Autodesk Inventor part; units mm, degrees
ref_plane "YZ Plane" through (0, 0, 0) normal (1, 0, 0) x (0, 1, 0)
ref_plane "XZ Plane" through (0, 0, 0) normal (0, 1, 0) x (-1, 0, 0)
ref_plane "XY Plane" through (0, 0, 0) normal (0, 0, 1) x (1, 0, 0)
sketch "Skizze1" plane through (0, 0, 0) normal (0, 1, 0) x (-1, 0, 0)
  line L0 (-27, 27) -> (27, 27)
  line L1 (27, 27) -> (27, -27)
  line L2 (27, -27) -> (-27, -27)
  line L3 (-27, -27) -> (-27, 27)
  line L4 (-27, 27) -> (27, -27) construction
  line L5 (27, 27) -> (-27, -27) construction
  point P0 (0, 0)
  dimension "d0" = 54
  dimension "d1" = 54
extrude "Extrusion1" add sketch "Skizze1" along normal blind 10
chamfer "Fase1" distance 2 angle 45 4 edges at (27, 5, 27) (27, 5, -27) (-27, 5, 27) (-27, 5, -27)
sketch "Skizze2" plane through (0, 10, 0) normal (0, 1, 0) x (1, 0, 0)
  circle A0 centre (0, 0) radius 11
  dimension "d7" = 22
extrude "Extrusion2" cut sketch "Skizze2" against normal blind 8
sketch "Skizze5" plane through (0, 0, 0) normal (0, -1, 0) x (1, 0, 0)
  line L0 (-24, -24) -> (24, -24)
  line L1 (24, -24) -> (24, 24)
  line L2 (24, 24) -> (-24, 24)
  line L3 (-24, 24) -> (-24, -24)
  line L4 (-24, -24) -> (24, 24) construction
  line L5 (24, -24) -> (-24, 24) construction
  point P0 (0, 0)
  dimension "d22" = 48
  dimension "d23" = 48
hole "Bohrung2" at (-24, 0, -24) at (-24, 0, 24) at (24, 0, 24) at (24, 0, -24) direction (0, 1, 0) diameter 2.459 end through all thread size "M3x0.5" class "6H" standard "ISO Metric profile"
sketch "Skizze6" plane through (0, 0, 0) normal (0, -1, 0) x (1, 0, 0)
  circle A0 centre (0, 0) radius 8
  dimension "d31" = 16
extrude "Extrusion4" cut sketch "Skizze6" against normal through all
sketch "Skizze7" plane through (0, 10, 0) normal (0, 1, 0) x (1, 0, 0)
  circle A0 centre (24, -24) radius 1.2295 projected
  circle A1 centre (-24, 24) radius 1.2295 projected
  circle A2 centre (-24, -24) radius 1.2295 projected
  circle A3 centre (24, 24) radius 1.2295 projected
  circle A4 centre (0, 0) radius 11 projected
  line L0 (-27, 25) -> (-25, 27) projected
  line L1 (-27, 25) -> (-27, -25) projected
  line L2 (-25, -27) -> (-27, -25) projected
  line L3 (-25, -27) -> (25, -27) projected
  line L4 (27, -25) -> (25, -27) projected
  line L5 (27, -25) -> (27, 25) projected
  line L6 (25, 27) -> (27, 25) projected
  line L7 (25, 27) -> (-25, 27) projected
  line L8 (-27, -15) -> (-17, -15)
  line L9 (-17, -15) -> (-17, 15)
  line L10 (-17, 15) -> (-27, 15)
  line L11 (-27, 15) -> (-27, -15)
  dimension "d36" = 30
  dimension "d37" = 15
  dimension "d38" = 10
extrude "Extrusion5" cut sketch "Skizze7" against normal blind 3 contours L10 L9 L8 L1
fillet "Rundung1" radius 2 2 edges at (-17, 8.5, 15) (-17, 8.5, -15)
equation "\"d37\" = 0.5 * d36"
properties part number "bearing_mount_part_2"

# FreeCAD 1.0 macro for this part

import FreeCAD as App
import Part
import Sketcher

V = App.Vector
Q = App.Units.Quantity


def edges_at(feature, points):
    """Names of the edges that pass closest to the given points."""
    edges = feature.Shape.Edges
    near = lambda p: min(range(len(edges)), key=lambda i: edges[i].distToShape(Part.Vertex(*p))[0])
    return sorted({f"Edge{near(p) + 1}" for p in points})

doc = App.newDocument("Part")
body = doc.addObject("PartDesign::Body", "Body")

sketch1 = body.newObject("Sketcher::SketchObject", "Sketch")
sketch1.AttachmentSupport = (doc.getObject("XZ_Plane"), [""])
sketch1.MapMode = "FlatFace"
sketch1.addGeometry([
    Part.LineSegment(V(-27, 27, 0), V(27, 27, 0)),
    Part.LineSegment(V(27, 27, 0), V(27, -27, 0)),
    Part.LineSegment(V(27, -27, 0), V(-27, -27, 0)),
    Part.LineSegment(V(-27, -27, 0), V(-27, 27, 0)),
], False)
sketch1.addConstraint([
    Sketcher.Constraint("Coincident", 0, 2, 1, 1),
    Sketcher.Constraint("Coincident", 1, 2, 2, 1),
    Sketcher.Constraint("Coincident", 2, 2, 3, 1),
    Sketcher.Constraint("Coincident", 3, 2, 0, 1),
    Sketcher.Constraint("Horizontal", 0),
    Sketcher.Constraint("Vertical", 1),
    Sketcher.Constraint("Horizontal", 2),
    Sketcher.Constraint("Vertical", 3),
    Sketcher.Constraint("Symmetric", 0, 2, 2, 2, -1, 1),
    Sketcher.Constraint("Equal", 2, 1),
    Sketcher.Constraint("DistanceX", 0, 1, 0, 2, Q("54 mm")),
])
pad1 = body.newObject("PartDesign::Pad", "Pad")
pad1.Profile = sketch1
pad1.Length = 10
pad1.Reversed = True
doc.recompute()

chamfer = body.newObject("PartDesign::Chamfer", "Chamfer")
chamfer.Base = (pad1, edges_at(pad1, [
    (27, 5, 27),
    (27, 5, -27),
    (-27, 5, 27),
    (-27, 5, -27),
]))
chamfer.Size = 2

sketch2 = body.newObject("Sketcher::SketchObject", "Sketch001")
sketch2.AttachmentSupport = (doc.getObject("XZ_Plane"), [""])
sketch2.MapMode = "FlatFace"
sketch2.AttachmentOffset = App.Placement(V(0, 0, -10), App.Rotation())
sketch2.addGeometry(Part.Circle(V(0, 0, 0), V(0, 0, 1), 11), False)
sketch2.addConstraint([
    Sketcher.Constraint("Coincident", 0, 3, -1, 1),
    Sketcher.Constraint("Diameter", 0, Q("22 mm")),
])
pocket1 = body.newObject("PartDesign::Pocket", "Pocket")
pocket1.Profile = sketch2
pocket1.Length = 8
pocket1.Reversed = True

sketch3 = body.newObject("Sketcher::SketchObject", "Sketch002")
sketch3.AttachmentSupport = (doc.getObject("XZ_Plane"), [""])
sketch3.MapMode = "FlatFace"
sketch3.addGeometry([
    Part.Circle(V(-24, -24, 0), V(0, 0, 1), 1.2),
    Part.Circle(V(-24, 24, 0), V(0, 0, 1), 1.2),
    Part.Circle(V(24, 24, 0), V(0, 0, 1), 1.2),
    Part.Circle(V(24, -24, 0), V(0, 0, 1), 1.2),
], False)
sketch3.addConstraint([
    Sketcher.Constraint("Equal", 0, 1),
    Sketcher.Constraint("Equal", 1, 2),
    Sketcher.Constraint("Equal", 2, 3),
    Sketcher.Constraint("Symmetric", 0, 3, 2, 3, -1, 1),
    Sketcher.Constraint("Symmetric", 1, 3, 3, 3, -1, 1),
    Sketcher.Constraint("Symmetric", 1, 3, 2, 3, -2),
    Sketcher.Constraint("Diameter", 0, Q("2.459 mm")),
    Sketcher.Constraint("DistanceX", 0, 3, -1, 1, Q("24 mm")),
    Sketcher.Constraint("DistanceY", 0, 3, -1, 1, Q("24 mm")),
])
doc.recompute()
hole = body.newObject("PartDesign::Hole", "Hole")
hole.Profile = sketch3
hole.ThreadType = "None"
hole.Diameter = 2.459
hole.DepthType = "ThroughAll"

sketch4 = body.newObject("Sketcher::SketchObject", "Sketch003")
sketch4.AttachmentSupport = (doc.getObject("XZ_Plane"), [""])
sketch4.MapMode = "FlatFace"
sketch4.addGeometry(Part.Circle(V(0, 0, 0), V(0, 0, 1), 8), False)
sketch4.addConstraint([
    Sketcher.Constraint("Coincident", 0, 3, -1, 1),
    Sketcher.Constraint("Diameter", 0, Q("16 mm")),
])
pocket2 = body.newObject("PartDesign::Pocket", "Pocket001")
pocket2.Profile = sketch4
pocket2.Type = "ThroughAll"

sketch5 = body.newObject("Sketcher::SketchObject", "Sketch004")
sketch5.AttachmentSupport = (doc.getObject("XZ_Plane"), [""])
sketch5.MapMode = "FlatFace"
sketch5.AttachmentOffset = App.Placement(V(0, 0, -10), App.Rotation())
sketch5.addGeometry([
    Part.LineSegment(V(-17, -15, 0), V(-27, -15, 0)),
    Part.LineSegment(V(-27, -15, 0), V(-27, 15, 0)),
    Part.LineSegment(V(-27, 15, 0), V(-17, 15, 0)),
    Part.LineSegment(V(-17, 15, 0), V(-17, -15, 0)),
], False)
sketch5.addConstraint([
    Sketcher.Constraint("Coincident", 0, 2, 1, 1),
    Sketcher.Constraint("Coincident", 1, 2, 2, 1),
    Sketcher.Constraint("Coincident", 2, 2, 3, 1),
    Sketcher.Constraint("Coincident", 3, 2, 0, 1),
    Sketcher.Constraint("Horizontal", 0),
    Sketcher.Constraint("Vertical", 1),
    Sketcher.Constraint("Horizontal", 2),
    Sketcher.Constraint("Vertical", 3),
    Sketcher.Constraint("DistanceX", 0, 2, 0, 1, Q("10 mm")),
    Sketcher.Constraint("DistanceY", 1, 1, 1, 2, Q("30 mm")),
    Sketcher.Constraint("DistanceY", 0, 2, -1, 1, Q("15 mm")),
    Sketcher.Constraint("DistanceX", 0, 2, -1, 1, Q("27 mm")),
])
pocket3 = body.newObject("PartDesign::Pocket", "Pocket002")
pocket3.Profile = sketch5
pocket3.Length = 3
pocket3.Reversed = True
doc.recompute()

fillet = body.newObject("PartDesign::Fillet", "Fillet")
fillet.Base = (pocket3, edges_at(pocket3, [(-17, 8.5, 15), (-17, 8.5, -15)]))
fillet.Radius = 2

doc.recompute()
